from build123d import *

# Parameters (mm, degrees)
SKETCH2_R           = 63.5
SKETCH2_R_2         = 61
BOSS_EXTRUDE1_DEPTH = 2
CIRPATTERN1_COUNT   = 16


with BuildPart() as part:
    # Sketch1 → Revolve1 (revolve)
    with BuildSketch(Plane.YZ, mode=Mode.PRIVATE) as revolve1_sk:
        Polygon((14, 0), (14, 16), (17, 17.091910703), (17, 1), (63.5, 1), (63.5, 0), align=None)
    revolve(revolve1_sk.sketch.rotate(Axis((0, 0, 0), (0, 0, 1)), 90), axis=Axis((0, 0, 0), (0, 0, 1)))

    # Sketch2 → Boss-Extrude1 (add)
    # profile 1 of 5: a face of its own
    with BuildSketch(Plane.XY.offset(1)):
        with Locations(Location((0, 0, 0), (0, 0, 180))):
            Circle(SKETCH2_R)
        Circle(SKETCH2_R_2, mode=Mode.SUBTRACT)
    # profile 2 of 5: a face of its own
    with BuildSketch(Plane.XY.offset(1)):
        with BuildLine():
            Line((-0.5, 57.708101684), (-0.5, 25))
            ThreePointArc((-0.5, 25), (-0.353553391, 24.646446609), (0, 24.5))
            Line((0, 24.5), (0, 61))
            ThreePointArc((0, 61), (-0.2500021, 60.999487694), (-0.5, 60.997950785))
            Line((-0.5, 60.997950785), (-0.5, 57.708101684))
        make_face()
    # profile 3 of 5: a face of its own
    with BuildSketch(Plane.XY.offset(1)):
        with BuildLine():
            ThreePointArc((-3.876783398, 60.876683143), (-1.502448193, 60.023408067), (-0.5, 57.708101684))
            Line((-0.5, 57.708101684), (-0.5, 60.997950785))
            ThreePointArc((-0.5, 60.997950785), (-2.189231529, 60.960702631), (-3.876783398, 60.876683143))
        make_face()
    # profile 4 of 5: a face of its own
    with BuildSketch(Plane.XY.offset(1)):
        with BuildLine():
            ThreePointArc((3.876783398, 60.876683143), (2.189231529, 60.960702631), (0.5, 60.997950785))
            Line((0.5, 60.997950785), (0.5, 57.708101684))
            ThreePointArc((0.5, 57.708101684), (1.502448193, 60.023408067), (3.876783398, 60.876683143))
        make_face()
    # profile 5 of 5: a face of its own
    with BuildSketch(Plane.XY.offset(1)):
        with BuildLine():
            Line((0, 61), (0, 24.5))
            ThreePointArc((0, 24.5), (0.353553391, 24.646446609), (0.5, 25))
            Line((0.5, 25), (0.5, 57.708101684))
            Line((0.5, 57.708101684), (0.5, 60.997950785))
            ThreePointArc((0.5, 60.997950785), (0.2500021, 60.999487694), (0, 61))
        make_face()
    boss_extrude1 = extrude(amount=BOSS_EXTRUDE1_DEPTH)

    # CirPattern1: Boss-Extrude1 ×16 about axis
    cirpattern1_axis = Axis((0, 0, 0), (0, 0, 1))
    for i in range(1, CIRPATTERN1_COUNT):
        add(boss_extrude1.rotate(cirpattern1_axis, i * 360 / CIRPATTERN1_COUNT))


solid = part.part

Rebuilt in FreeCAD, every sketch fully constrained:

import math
import FreeCAD as App
import Part
import Sketcher
Q = App.Units.Quantity


def add_polygon(sketch, points):
    """Adds a closed chain of lines whose ends are joined by coincident constraints."""
    first, n = sketch.GeometryCount, len(points)
    for a, b in zip(points, points[1:] + points[:1]):
        sketch.addGeometry(Part.LineSegment(App.Vector(*a, 0), App.Vector(*b, 0)), False)
    for i in range(n):
        sketch.addConstraint(Sketcher.Constraint("Coincident", first + i, 2, first + (i + 1) % n, 1))

doc = App.newDocument("Part")
body = doc.addObject("PartDesign::Body", "Body")

# Sketch on YZ plane
sketch1 = body.newObject("Sketcher::SketchObject", "Sketch")
sketch1.AttachmentSupport = (doc.getObject("YZ_Plane"), [""])
sketch1.MapMode = "FlatFace"
add_polygon(sketch1, [(14, 16), (14, 0), (63.5, 0), (63.5, 1), (17, 1), (17, 17.1)])  # lines 0-5
sketch1.addConstraint(Sketcher.Constraint("Vertical", 0))
sketch1.addConstraint(Sketcher.Constraint("Horizontal", 1))
sketch1.addConstraint(Sketcher.Constraint("Vertical", 2))
sketch1.addConstraint(Sketcher.Constraint("Horizontal", 3))
sketch1.addConstraint(Sketcher.Constraint("Vertical", 4))
sketch1.addConstraint(Sketcher.Constraint("PointOnObject", 0, 2, -1))
sketch1.addConstraint(Sketcher.Constraint("DistanceY", 0, 2, 0, 1, Q("16 mm")))
sketch1.addConstraint(Sketcher.Constraint("DistanceY", 2, 1, 2, 2, Q("1 mm")))
sketch1.addConstraint(Sketcher.Constraint("Angle", 5, Q("-160 deg")))
sketch1.addConstraint(Sketcher.Constraint("DistanceX", 1, 1, 1, 2, Q("49.5 mm")))
sketch1.addConstraint(Sketcher.Constraint("DistanceX", 3, 2, 3, 1, Q("46.5 mm")))
sketch1.addConstraint(Sketcher.Constraint("DistanceX", -1, 1, 0, 2, Q("14 mm")))
revolution = body.newObject("PartDesign::Revolution", "Revolution")
revolution.Profile = sketch1
revolution.ReferenceAxis = (sketch1, ["V_Axis"])
revolution.Angle = 360

# Sketch on XY plane
sketch2 = body.newObject("Sketcher::SketchObject", "Sketch001")
sketch2.AttachmentSupport = (doc.getObject("XY_Plane"), [""])
sketch2.MapMode = "FlatFace"
sketch2.AttachmentOffset = App.Placement(App.Vector(0, 0, 1), App.Rotation())
sketch2.addGeometry(Part.Circle(App.Vector(0, 0, 0), App.Vector(0, 0, 1), 63.5), False)
sketch2.addGeometry(Part.ArcOfCircle(Part.Circle(App.Vector(0, 0, 0), App.Vector(0, 0, 1), 61), math.radians(94), math.radians(446)), False)
sketch2.addGeometry(Part.ArcOfCircle(Part.Circle(App.Vector(-3.67, 57.71, 0), App.Vector(0, 0, 1), 3.17), math.radians(0), math.radians(94)), False)
sketch2.addGeometry(Part.LineSegment(App.Vector(-0.5, 57.71, 0), App.Vector(-0.5, 25, 0)), False)
sketch2.addGeometry(Part.ArcOfCircle(Part.Circle(App.Vector(0, 25, 0), App.Vector(0, 0, 1), 0.5), math.radians(180), math.radians(270)), False)
sketch2.addGeometry(Part.ArcOfCircle(Part.Circle(App.Vector(0, 25, 0), App.Vector(0, 0, 1), 0.5), math.radians(-90), math.radians(0)), False)
sketch2.addGeometry(Part.LineSegment(App.Vector(0.5, 25, 0), App.Vector(0.5, 57.71, 0)), False)
sketch2.addGeometry(Part.ArcOfCircle(Part.Circle(App.Vector(3.67, 57.71, 0), App.Vector(0, 0, 1), 3.17), math.radians(86), math.radians(180)), False)
sketch2.addConstraint(Sketcher.Constraint("Tangent", 1, 1, 2, 2))
sketch2.addConstraint(Sketcher.Constraint("Tangent", 2, 1, 3, 1))
sketch2.addConstraint(Sketcher.Constraint("Tangent", 3, 2, 4, 1))
sketch2.addConstraint(Sketcher.Constraint("Tangent", 4, 2, 5, 1))
sketch2.addConstraint(Sketcher.Constraint("Tangent", 5, 2, 6, 1))
sketch2.addConstraint(Sketcher.Constraint("Tangent", 6, 2, 7, 2))
sketch2.addConstraint(Sketcher.Constraint("Tangent", 7, 1, 1, 2))
sketch2.addConstraint(Sketcher.Constraint("Vertical", 3))
sketch2.addConstraint(Sketcher.Constraint("Vertical", 6))
sketch2.addConstraint(Sketcher.Constraint("Coincident", 0, 3, -1, 1))
sketch2.addConstraint(Sketcher.Constraint("Coincident", 1, 3, -1, 1))
sketch2.addConstraint(Sketcher.Constraint("Equal", 4, 5))
sketch2.addConstraint(Sketcher.Constraint("Equal", 2, 7))
sketch2.addConstraint(Sketcher.Constraint("PointOnObject", 4, 3, -2))
sketch2.addConstraint(Sketcher.Constraint("PointOnObject", 4, 2, -2))
sketch2.addConstraint(Sketcher.Constraint("Diameter", 0, Q("127 mm")))
sketch2.addConstraint(Sketcher.Constraint("Radius", 1, Q("61 mm")))
sketch2.addConstraint(Sketcher.Constraint("Radius", 4, Q("0.5 mm")))
sketch2.addConstraint(Sketcher.Constraint("DistanceY", -1, 1, 4, 3, Q("25 mm")))
sketch2.addConstraint(Sketcher.Constraint("Radius", 2, Q("3.175 mm")))
pad1 = body.newObject("PartDesign::Pad", "Pad")
pad1.Profile = sketch2
pad1.Length = 2
doc.recompute()

polarpattern = body.newObject("PartDesign::PolarPattern", "PolarPattern")
polarpattern.Originals = [pad1]
polarpattern.Axis = (doc.getObject("Z_Axis"), [""])
polarpattern.Angle = 360
polarpattern.Occurrences = 16
body.Tip = polarpattern

doc.recompute()
